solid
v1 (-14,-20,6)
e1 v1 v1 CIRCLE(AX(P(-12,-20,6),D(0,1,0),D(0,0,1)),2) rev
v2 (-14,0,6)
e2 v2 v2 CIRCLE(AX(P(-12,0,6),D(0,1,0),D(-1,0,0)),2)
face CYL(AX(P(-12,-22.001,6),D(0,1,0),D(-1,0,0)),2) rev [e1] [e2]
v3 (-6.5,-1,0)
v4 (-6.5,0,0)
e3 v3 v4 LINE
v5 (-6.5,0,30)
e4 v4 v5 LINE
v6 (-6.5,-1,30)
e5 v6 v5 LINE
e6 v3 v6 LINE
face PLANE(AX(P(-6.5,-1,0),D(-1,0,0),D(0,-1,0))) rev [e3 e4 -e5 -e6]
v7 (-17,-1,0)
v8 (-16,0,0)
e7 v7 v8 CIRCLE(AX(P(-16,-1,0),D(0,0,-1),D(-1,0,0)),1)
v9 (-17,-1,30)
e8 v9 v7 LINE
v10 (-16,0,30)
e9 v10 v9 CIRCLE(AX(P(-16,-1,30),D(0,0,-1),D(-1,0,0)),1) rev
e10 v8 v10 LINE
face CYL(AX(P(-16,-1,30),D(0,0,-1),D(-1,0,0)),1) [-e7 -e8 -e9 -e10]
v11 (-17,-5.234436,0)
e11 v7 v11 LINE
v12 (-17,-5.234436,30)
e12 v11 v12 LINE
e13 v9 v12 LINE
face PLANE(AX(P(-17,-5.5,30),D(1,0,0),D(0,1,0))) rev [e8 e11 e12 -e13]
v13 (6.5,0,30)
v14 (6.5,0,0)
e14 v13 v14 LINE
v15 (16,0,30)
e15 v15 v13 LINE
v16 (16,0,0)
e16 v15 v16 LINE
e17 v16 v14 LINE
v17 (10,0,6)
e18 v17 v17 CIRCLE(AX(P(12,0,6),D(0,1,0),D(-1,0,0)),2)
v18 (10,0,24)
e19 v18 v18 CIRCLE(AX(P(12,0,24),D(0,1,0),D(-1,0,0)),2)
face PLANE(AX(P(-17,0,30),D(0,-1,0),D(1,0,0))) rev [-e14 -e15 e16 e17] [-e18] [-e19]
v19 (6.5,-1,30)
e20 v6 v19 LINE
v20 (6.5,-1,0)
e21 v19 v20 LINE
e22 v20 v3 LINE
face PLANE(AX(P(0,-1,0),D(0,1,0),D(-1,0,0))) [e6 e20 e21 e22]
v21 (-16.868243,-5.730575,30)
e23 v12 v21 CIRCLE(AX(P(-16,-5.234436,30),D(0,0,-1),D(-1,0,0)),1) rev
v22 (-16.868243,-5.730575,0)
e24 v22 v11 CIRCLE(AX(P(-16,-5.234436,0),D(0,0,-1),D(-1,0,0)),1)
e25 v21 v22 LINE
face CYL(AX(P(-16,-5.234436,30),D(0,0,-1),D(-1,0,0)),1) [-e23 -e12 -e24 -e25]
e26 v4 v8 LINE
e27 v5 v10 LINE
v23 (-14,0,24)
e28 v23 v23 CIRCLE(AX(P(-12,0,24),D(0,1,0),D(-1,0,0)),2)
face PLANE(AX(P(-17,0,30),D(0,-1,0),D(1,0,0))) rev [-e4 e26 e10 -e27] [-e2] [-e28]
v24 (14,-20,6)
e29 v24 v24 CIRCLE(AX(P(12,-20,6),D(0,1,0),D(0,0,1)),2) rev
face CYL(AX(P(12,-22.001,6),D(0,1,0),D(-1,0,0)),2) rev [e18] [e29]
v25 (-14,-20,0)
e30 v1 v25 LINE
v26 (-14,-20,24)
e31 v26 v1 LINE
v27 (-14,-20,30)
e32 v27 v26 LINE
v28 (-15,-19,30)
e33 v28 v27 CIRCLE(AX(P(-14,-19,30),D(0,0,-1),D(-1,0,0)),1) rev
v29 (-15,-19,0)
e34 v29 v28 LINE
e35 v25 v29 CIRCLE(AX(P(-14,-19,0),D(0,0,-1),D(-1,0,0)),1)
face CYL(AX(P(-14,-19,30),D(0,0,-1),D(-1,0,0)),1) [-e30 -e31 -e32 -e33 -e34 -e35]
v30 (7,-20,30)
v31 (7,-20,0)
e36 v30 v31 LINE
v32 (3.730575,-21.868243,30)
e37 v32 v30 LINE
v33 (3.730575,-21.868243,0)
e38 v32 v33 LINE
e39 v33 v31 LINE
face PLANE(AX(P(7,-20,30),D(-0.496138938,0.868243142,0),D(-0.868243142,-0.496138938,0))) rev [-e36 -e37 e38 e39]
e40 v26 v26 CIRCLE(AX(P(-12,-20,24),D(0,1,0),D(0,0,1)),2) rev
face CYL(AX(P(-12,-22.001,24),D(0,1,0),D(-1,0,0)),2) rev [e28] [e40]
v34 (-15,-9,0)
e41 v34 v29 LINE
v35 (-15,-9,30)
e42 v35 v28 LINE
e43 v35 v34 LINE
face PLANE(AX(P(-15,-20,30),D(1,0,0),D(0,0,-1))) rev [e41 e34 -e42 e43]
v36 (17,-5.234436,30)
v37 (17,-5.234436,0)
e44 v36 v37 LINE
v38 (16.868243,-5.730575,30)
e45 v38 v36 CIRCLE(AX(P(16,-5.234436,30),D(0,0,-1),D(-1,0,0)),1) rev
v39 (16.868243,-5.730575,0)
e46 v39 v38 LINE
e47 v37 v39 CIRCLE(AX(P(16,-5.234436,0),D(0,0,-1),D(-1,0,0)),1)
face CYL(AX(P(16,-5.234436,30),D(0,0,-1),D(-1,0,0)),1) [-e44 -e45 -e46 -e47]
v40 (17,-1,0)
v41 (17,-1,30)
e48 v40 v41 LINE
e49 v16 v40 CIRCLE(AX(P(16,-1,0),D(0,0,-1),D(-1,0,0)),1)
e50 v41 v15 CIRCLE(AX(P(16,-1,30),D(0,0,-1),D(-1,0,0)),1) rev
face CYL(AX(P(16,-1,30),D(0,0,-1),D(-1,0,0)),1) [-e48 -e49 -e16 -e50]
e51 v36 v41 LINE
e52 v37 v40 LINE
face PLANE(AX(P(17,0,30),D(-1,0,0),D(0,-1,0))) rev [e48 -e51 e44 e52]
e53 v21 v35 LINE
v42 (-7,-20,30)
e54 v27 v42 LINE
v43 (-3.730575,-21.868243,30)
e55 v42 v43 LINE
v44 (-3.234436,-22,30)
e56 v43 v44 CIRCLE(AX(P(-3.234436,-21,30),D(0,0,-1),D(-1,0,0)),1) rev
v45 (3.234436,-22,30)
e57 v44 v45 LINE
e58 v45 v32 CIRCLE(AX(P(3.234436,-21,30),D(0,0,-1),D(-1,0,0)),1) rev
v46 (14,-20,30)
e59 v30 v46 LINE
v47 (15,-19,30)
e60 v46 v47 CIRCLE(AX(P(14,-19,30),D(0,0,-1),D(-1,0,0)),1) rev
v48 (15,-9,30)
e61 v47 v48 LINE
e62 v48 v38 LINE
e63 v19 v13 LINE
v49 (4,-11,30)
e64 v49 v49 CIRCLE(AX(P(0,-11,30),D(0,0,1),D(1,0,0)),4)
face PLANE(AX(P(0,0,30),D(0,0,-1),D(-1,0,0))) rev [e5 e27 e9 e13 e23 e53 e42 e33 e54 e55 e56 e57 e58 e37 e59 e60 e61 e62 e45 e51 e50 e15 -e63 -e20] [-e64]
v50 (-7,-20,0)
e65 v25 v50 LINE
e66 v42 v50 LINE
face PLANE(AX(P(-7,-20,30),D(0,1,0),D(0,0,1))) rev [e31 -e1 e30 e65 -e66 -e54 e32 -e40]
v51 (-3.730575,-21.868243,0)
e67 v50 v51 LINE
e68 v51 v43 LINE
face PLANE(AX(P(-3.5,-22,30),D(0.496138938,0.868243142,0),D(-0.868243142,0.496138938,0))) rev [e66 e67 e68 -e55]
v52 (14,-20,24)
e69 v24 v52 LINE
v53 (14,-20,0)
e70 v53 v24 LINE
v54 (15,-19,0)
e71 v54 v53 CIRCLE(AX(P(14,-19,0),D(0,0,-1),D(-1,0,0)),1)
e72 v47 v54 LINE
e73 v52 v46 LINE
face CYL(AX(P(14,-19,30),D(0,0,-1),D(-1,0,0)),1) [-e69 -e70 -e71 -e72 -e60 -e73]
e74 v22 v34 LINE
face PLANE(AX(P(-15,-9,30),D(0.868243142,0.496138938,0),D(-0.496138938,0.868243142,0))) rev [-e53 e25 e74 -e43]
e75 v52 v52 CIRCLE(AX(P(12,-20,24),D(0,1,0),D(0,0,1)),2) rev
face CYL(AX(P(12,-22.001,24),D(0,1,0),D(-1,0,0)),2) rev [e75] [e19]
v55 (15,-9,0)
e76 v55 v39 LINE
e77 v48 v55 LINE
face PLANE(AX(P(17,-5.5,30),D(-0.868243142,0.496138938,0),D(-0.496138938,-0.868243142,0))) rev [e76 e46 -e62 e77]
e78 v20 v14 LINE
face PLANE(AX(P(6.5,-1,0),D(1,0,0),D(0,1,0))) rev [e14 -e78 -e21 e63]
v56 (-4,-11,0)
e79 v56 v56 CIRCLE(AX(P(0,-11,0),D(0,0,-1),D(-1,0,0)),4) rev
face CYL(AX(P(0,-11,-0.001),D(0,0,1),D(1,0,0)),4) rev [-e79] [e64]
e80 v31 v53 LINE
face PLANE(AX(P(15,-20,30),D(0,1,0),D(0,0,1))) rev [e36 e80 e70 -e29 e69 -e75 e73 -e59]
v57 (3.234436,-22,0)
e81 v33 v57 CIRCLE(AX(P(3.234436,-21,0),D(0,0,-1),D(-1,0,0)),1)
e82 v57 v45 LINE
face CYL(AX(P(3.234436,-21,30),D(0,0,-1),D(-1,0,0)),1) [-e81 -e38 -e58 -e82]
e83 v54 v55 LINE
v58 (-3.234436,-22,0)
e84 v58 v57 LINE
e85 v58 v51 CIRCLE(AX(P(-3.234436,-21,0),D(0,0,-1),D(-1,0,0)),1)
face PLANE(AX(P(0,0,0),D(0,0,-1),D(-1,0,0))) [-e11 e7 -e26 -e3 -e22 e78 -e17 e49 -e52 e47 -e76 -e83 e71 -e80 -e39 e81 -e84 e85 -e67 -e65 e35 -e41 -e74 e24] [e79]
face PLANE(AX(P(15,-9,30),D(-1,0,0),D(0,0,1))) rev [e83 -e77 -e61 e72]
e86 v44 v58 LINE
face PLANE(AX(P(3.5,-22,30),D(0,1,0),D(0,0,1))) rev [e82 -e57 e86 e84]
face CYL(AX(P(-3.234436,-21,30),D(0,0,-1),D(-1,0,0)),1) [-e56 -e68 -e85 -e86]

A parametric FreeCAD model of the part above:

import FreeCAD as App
import Part
import Sketcher

V = App.Vector


def edges_at(feature, points):
    """Names of the edges that pass closest to the given points."""
    edges = feature.Shape.Edges
    near = lambda p: min(range(len(edges)), key=lambda i: edges[i].distToShape(Part.Vertex(*p))[0])
    return sorted({f"Edge{near(p) + 1}" for p in points})


def add_polygon(sketch, points):
    """Adds a closed chain of lines whose ends are joined by coincident constraints."""
    first, n = sketch.GeometryCount, len(points)
    for a, b in zip(points, points[1:] + points[:1]):
        sketch.addGeometry(Part.LineSegment(App.Vector(*a, 0), App.Vector(*b, 0)), False)
    for i in range(n):
        sketch.addConstraint(Sketcher.Constraint("Coincident", first + i, 2, first + (i + 1) % n, 1))

doc = App.newDocument("Part")
params = doc.addObject("Spreadsheet::Sheet", "Params")
for row, (alias, value) in enumerate([
    ("sketch1_width", "34 mm"),
    ("sketch1_width2", "8 mm"),
    ("sketch1_width3", "7 mm"),
    ("sketch1_height", "11 mm"),
    ("sketch1_height2", "5.5 mm"),
    ("pad1_length", "30 mm"),
    ("fillet_radius", "1 mm"),
    ("sketch2_diameter", "8 mm"),
    ("sketch3_diameter", "4 mm"),
    ("sketch4_diameter", "4 mm"),
    ("sketch5_diameter", "4 mm"),
    ("sketch6_diameter", "4 mm"),
    ("sketch7_width", "13 mm"),
    ("sketch7_height", "30 mm"),
    ("pocket6_length", "1 mm"),
], start=1):
    params.set(f"A{row}", alias)
    params.set(f"B{row}", "=" + value)
    params.setAlias(f"B{row}", alias)

body = doc.addObject("PartDesign::Body", "Body")

# Sketch on XY plane
sketch1 = body.newObject("Sketcher::SketchObject", "Sketch")
sketch1.AttachmentSupport = (doc.getObject("XY_Plane"), [""])
sketch1.MapMode = "FlatFace"
add_polygon(sketch1, [(17, 0), (-17, 0), (-17, -5.5), (-15, -9), (-15, -20), (-7, -20), (-3.5, -22), (3.5, -22), (7, -20), (15, -20), (15, -9), (17, -5.5)])  # lines 0-11
sketch1.addConstraint([
    Sketcher.Constraint("Horizontal", 0),
    Sketcher.Constraint("Vertical", 1),
    Sketcher.Constraint("Vertical", 3),
    Sketcher.Constraint("Horizontal", 4),
    Sketcher.Constraint("Horizontal", 6),
    Sketcher.Constraint("Horizontal", 8),
    Sketcher.Constraint("Vertical", 9),
    Sketcher.Constraint("Vertical", 11),
    Sketcher.Constraint("Symmetric", 0, 2, 11, 2, -1, 1),
    Sketcher.Constraint("Symmetric", 4, 2, 7, 2, -2),
    Sketcher.Constraint("Symmetric", 2, 2, 9, 2, -2),
    Sketcher.Constraint("Perpendicular", 2, 7),
    Sketcher.Constraint("Perpendicular", 5, 10),
    Sketcher.Constraint("Horizontal", 1, 2, 10, 2),
    Sketcher.Constraint("Equal", 2, 5),
    Sketcher.Constraint("DistanceX", 0, 2, 0, 1, 34.0),
    Sketcher.Constraint("DistanceX", 4, 1, 4, 2, 8.0),
    Sketcher.Constraint("DistanceX", 6, 1, 6, 2, 7.0),
    Sketcher.Constraint("DistanceY", 3, 2, 3, 1, 11.0),
    Sketcher.Constraint("DistanceY", 1, 2, 1, 1, 5.5),
    Sketcher.Constraint("DistanceX", 2, 2, -1, 1, 15.0),
])
sketch1.setExpression("Constraints[27]", "Params.sketch1_width")
sketch1.setExpression("Constraints[28]", "Params.sketch1_width2")
sketch1.setExpression("Constraints[29]", "Params.sketch1_width3")
sketch1.setExpression("Constraints[30]", "Params.sketch1_height")
sketch1.setExpression("Constraints[31]", "Params.sketch1_height2")
pad1 = body.newObject("PartDesign::Pad", "Pad")
pad1.Profile = sketch1
pad1.setExpression("Length", "Params.pad1_length")
doc.recompute()

fillet = body.newObject("PartDesign::Fillet", "Fillet")
fillet.Base = (pad1, edges_at(pad1, [
    (-17, 0, 15),
    (17, 0, 15),
    (17, -5.5, 15),
    (15, -20, 15),
    (3.5, -22, 15),
    (-3.5, -22, 15),
    (-15, -20, 15),
    (-17, -5.5, 15),
]))
fillet.setExpression("Radius", "Params.fillet_radius")

# Sketch on XY plane
sketch2 = body.newObject("Sketcher::SketchObject", "Sketch001")
sketch2.AttachmentSupport = (doc.getObject("XY_Plane"), [""])
sketch2.MapMode = "FlatFace"
sketch2.AttachmentOffset = App.Placement(V(0, 0, 30), App.Rotation())
sketch2.addGeometry(Part.Circle(V(0, -11, 0), V(0, 0, 1), 4), False)
sketch2.addConstraint([
    Sketcher.Constraint("PointOnObject", 0, 3, -2),
    Sketcher.Constraint("Diameter", 0, 8.0),
    Sketcher.Constraint("DistanceY", 0, 3, -1, 1, 11.0),
])
sketch2.setExpression("Constraints[1]", "Params.sketch2_diameter")
pocket1 = body.newObject("PartDesign::Pocket", "Pocket")
pocket1.Profile = sketch2
pocket1.Type = "UpToFirst"

# Sketch on XZ plane
sketch3 = body.newObject("Sketcher::SketchObject", "Sketch002")
sketch3.AttachmentSupport = (doc.getObject("XZ_Plane"), [""])
sketch3.MapMode = "FlatFace"
sketch3.addGeometry(Part.Circle(V(-12, 6, 0), V(0, 0, 1), 2), False)
sketch3.addConstraint([
    Sketcher.Constraint("Diameter", 0, 4.0),
    Sketcher.Constraint("DistanceX", 0, 3, -1, 1, 12.0),
    Sketcher.Constraint("DistanceY", -1, 1, 0, 3, 6.0),
])
sketch3.setExpression("Constraints[0]", "Params.sketch3_diameter")
pocket2 = body.newObject("PartDesign::Pocket", "Pocket001")
pocket2.Profile = sketch3
pocket2.Type = "UpToFirst"
pocket2.Reversed = True

# Sketch on XZ plane
sketch4 = body.newObject("Sketcher::SketchObject", "Sketch003")
sketch4.AttachmentSupport = (doc.getObject("XZ_Plane"), [""])
sketch4.MapMode = "FlatFace"
sketch4.addGeometry(Part.Circle(V(-12, 24, 0), V(0, 0, 1), 2), False)
sketch4.addConstraint([
    Sketcher.Constraint("Diameter", 0, 4.0),
    Sketcher.Constraint("DistanceX", 0, 3, -1, 1, 12.0),
    Sketcher.Constraint("DistanceY", -1, 1, 0, 3, 24.0),
])
sketch4.setExpression("Constraints[0]", "Params.sketch4_diameter")
pocket3 = body.newObject("PartDesign::Pocket", "Pocket002")
pocket3.Profile = sketch4
pocket3.Type = "UpToFirst"
pocket3.Reversed = True

# Sketch on XZ plane
sketch5 = body.newObject("Sketcher::SketchObject", "Sketch004")
sketch5.AttachmentSupport = (doc.getObject("XZ_Plane"), [""])
sketch5.MapMode = "FlatFace"
sketch5.addGeometry(Part.Circle(V(12, 24, 0), V(0, 0, 1), 2), False)
sketch5.addConstraint([
    Sketcher.Constraint("Diameter", 0, 4.0),
    Sketcher.Constraint("DistanceX", -1, 1, 0, 3, 12.0),
    Sketcher.Constraint("DistanceY", -1, 1, 0, 3, 24.0),
])
sketch5.setExpression("Constraints[0]", "Params.sketch5_diameter")
pocket4 = body.newObject("PartDesign::Pocket", "Pocket003")
pocket4.Profile = sketch5
pocket4.Type = "UpToFirst"
pocket4.Reversed = True

# Sketch on XZ plane
sketch6 = body.newObject("Sketcher::SketchObject", "Sketch005")
sketch6.AttachmentSupport = (doc.getObject("XZ_Plane"), [""])
sketch6.MapMode = "FlatFace"
sketch6.addGeometry(Part.Circle(V(12, 6, 0), V(0, 0, 1), 2), False)
sketch6.addConstraint([
    Sketcher.Constraint("Diameter", 0, 4.0),
    Sketcher.Constraint("DistanceX", -1, 1, 0, 3, 12.0),
    Sketcher.Constraint("DistanceY", -1, 1, 0, 3, 6.0),
])
sketch6.setExpression("Constraints[0]", "Params.sketch6_diameter")
pocket5 = body.newObject("PartDesign::Pocket", "Pocket004")
pocket5.Profile = sketch6
pocket5.Type = "UpToFirst"
pocket5.Reversed = True

# Sketch on XZ plane
sketch7 = body.newObject("Sketcher::SketchObject", "Sketch006")
sketch7.AttachmentSupport = (doc.getObject("XZ_Plane"), [""])
sketch7.MapMode = "FlatFace"
add_polygon(sketch7, [(-6.5, 0), (-6.5, 30), (6.5, 30), (6.5, 0)])  # lines 0-3
sketch7.addConstraint([
    Sketcher.Constraint("Vertical", 0),
    Sketcher.Constraint("Horizontal", 1),
    Sketcher.Constraint("Vertical", 2),
    Sketcher.Constraint("Horizontal", 3),
    Sketcher.Constraint("Symmetric", 2, 2, 3, 2, -1, 1),
    Sketcher.Constraint("DistanceX", 1, 1, 1, 2, 13.0),
    Sketcher.Constraint("DistanceY", 0, 1, 0, 2, 30.0),
])
sketch7.setExpression("Constraints[9]", "Params.sketch7_width")
sketch7.setExpression("Constraints[10]", "Params.sketch7_height")
pocket6 = body.newObject("PartDesign::Pocket", "Pocket005")
pocket6.Profile = sketch7
pocket6.setExpression("Length", "Params.pocket6_length")
pocket6.Reversed = True

doc.recompute()
